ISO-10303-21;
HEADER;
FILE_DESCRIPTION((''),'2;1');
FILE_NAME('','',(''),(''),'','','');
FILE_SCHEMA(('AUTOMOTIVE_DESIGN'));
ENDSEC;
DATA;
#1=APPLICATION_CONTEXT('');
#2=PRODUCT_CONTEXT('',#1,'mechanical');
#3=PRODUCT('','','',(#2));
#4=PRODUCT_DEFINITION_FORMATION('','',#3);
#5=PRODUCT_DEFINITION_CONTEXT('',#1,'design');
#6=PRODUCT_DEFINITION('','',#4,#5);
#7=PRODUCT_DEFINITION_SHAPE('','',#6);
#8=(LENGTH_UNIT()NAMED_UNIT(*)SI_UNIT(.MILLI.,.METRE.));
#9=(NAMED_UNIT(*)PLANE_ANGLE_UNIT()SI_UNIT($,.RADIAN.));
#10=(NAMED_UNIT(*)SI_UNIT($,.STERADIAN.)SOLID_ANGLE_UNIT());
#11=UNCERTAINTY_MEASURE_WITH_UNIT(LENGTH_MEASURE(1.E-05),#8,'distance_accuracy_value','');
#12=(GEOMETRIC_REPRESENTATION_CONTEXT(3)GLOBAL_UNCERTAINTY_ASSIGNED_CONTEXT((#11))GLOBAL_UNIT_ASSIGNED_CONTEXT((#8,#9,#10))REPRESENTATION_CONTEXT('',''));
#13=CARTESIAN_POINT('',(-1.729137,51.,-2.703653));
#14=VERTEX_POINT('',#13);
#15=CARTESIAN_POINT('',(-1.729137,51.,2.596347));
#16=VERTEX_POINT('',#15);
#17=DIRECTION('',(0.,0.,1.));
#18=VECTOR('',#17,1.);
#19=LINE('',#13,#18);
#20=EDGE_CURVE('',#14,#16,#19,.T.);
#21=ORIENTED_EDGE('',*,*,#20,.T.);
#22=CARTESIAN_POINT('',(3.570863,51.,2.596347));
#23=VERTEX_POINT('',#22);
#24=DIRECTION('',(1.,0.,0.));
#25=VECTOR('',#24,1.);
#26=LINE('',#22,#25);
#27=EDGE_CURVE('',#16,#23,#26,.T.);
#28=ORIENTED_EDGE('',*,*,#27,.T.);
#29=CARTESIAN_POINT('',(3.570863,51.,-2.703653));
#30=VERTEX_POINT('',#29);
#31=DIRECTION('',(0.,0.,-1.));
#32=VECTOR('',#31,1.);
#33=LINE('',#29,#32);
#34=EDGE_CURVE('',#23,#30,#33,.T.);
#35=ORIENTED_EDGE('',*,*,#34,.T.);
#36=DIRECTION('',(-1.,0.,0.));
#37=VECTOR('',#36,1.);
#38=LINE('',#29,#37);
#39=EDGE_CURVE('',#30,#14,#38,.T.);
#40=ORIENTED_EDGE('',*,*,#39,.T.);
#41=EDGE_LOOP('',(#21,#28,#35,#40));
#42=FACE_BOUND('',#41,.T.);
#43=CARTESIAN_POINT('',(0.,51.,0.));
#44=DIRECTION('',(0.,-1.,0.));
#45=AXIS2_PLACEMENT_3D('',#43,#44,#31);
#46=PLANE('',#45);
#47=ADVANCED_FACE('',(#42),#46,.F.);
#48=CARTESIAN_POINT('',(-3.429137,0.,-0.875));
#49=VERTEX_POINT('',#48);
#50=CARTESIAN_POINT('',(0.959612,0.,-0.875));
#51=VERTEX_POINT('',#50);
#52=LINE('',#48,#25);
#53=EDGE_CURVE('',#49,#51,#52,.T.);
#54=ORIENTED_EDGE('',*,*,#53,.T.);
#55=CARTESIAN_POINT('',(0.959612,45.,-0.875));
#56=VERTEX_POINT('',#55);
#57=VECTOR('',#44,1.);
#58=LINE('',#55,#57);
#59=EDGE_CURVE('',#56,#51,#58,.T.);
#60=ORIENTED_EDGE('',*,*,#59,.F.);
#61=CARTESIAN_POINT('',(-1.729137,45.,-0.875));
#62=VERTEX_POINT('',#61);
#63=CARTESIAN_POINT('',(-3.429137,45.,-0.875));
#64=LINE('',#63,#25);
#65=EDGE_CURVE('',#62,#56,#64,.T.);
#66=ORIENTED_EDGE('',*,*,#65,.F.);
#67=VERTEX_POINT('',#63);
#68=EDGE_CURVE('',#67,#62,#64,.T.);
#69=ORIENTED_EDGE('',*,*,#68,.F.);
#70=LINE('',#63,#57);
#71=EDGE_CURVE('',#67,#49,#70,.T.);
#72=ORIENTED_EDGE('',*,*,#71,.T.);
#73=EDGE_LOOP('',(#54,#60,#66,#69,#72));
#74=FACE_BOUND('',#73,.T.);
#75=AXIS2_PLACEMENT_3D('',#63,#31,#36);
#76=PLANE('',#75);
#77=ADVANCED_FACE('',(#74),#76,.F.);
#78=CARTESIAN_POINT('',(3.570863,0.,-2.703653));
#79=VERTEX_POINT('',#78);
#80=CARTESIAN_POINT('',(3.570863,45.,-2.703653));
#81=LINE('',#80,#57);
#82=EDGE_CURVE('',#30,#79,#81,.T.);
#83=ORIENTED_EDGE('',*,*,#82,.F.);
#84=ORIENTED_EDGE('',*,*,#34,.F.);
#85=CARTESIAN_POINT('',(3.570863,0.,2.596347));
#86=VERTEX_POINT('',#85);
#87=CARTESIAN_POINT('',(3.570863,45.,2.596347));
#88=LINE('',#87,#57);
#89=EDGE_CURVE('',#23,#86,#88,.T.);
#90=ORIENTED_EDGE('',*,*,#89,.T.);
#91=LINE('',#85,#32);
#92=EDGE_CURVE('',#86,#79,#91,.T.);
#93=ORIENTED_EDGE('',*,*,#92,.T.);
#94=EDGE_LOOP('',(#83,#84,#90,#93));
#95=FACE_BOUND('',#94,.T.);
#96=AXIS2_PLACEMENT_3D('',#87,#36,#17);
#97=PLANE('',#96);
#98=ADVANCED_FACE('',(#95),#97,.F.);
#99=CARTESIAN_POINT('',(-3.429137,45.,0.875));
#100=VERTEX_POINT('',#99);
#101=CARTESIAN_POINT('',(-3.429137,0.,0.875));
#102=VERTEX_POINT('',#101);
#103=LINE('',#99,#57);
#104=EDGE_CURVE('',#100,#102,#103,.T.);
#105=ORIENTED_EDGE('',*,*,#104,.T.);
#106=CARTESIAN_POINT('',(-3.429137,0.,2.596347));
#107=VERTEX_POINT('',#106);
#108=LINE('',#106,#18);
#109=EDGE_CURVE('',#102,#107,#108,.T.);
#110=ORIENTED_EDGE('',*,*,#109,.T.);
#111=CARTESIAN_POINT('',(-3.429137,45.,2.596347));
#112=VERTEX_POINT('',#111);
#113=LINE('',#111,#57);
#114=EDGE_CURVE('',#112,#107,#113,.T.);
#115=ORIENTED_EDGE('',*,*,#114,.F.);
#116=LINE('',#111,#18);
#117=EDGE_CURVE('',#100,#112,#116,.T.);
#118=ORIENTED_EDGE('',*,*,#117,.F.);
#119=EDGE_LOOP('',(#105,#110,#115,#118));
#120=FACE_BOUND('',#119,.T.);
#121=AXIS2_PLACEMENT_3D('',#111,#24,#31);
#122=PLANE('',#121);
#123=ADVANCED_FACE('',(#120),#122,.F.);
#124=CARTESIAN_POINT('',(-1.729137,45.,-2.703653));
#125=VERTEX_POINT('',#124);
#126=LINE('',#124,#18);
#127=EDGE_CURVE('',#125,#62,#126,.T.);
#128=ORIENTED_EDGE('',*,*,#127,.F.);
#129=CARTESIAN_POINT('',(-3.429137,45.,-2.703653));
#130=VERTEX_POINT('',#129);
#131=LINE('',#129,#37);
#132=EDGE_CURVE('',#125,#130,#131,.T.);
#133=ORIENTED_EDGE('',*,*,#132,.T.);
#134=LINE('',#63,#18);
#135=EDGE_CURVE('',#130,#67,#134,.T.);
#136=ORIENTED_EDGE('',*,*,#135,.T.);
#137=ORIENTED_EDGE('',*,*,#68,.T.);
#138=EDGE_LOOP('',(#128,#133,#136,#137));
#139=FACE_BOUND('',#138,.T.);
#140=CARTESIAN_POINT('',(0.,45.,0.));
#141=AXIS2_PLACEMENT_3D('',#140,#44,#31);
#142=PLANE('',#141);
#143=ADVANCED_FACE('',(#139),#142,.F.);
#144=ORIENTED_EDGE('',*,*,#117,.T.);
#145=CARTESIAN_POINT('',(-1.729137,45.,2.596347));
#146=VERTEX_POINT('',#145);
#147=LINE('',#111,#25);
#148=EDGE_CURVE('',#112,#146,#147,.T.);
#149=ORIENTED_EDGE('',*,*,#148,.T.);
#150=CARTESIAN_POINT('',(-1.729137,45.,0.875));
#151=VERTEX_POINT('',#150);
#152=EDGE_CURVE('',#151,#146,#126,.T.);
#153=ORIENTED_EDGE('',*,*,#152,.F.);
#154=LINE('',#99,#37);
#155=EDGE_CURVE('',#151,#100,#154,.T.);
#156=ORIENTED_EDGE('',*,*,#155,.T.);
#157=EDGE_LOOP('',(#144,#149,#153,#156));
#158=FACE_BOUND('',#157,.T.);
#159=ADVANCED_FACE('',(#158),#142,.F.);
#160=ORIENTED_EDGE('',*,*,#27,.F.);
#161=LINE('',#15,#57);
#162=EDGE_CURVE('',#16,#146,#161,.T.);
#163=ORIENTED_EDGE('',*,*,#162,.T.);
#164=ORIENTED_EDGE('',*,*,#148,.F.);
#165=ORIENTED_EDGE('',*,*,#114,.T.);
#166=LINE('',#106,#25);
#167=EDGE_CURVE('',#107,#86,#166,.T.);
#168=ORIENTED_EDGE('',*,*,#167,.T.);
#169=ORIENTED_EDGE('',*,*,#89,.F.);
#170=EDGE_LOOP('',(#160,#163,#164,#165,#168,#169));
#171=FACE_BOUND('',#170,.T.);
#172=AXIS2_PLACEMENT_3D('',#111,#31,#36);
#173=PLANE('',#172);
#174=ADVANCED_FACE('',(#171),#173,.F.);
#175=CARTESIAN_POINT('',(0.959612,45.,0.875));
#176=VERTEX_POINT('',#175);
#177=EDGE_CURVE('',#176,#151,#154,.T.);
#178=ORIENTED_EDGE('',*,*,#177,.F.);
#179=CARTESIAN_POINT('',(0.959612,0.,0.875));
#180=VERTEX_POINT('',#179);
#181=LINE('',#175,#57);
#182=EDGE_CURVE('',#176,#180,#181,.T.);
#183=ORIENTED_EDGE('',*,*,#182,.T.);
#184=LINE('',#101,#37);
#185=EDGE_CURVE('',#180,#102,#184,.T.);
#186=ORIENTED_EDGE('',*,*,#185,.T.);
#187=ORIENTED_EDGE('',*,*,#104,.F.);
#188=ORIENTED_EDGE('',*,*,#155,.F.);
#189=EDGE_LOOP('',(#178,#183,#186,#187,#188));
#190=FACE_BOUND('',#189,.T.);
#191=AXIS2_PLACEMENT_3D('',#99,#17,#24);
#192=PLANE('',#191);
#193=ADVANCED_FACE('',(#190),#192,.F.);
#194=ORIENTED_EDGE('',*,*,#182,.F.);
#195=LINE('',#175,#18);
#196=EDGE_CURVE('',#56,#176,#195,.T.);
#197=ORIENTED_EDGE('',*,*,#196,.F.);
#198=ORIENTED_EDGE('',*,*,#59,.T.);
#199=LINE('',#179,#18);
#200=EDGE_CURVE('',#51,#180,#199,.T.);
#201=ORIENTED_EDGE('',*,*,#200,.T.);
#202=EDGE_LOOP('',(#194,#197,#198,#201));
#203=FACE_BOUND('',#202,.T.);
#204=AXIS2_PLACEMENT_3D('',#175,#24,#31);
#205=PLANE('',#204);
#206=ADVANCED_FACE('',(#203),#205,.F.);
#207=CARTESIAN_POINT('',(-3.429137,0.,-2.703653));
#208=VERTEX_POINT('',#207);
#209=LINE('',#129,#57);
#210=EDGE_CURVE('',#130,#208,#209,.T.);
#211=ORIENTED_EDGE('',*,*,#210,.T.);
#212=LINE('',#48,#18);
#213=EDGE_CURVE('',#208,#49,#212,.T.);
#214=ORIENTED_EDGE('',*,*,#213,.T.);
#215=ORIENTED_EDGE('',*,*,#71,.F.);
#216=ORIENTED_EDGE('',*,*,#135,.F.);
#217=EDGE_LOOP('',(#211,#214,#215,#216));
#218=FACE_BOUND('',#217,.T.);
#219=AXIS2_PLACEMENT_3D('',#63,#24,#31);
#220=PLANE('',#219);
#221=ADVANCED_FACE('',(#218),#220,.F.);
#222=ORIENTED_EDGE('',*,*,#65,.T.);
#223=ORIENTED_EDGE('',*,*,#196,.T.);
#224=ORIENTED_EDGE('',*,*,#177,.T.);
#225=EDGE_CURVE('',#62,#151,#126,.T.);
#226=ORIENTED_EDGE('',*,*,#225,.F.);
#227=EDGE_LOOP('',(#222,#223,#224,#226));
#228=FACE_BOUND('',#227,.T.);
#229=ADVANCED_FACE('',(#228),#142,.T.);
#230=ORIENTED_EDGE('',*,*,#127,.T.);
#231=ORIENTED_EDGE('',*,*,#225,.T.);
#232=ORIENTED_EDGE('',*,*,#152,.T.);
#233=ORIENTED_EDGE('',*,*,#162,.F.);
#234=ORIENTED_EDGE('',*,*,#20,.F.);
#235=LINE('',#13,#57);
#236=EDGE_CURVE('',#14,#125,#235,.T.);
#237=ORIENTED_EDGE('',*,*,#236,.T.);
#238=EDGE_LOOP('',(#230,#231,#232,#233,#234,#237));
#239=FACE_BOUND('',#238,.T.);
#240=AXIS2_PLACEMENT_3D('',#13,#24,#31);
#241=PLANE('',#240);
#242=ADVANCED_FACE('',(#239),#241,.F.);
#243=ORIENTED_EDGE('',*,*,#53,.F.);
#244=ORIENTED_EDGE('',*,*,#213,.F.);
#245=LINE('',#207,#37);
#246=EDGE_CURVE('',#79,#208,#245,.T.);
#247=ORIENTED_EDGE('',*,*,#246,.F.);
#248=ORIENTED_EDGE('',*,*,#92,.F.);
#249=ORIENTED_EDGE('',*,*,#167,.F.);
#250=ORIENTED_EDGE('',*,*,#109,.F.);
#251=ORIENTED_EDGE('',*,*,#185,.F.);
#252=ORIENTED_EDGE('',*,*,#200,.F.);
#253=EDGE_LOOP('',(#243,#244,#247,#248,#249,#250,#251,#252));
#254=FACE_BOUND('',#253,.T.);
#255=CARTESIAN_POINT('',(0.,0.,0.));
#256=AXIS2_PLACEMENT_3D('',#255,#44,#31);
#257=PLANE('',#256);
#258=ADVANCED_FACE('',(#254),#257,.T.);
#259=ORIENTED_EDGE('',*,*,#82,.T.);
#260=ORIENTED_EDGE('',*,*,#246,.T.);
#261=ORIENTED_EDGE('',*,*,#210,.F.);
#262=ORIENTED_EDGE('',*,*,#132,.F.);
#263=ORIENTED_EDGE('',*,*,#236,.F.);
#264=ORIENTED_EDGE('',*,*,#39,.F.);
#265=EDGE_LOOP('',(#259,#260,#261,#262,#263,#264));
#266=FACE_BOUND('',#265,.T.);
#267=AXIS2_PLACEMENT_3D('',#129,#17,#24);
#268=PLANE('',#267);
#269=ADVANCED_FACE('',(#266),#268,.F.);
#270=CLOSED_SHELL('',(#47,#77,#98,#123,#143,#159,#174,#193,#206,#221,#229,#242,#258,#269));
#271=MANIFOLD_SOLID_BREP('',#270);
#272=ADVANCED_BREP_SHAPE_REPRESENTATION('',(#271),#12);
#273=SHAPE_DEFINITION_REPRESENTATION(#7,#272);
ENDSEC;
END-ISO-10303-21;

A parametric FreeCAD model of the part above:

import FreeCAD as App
import Part
import Sketcher

V = App.Vector


def add_polygon(sketch, points):
    """Adds a closed chain of lines whose ends are joined by coincident constraints."""
    first, n = sketch.GeometryCount, len(points)
    for a, b in zip(points, points[1:] + points[:1]):
        sketch.addGeometry(Part.LineSegment(App.Vector(*a, 0), App.Vector(*b, 0)), False)
    for i in range(n):
        sketch.addConstraint(Sketcher.Constraint("Coincident", first + i, 2, first + (i + 1) % n, 1))

doc = App.newDocument("Part")
body = doc.addObject("PartDesign::Body", "Body")

# Sketch on XZ plane
sketch1 = body.newObject("Sketcher::SketchObject", "Sketch")
sketch1.AttachmentSupport = (doc.getObject("XZ_Plane"), [""])
sketch1.MapMode = "FlatFace"
add_polygon(sketch1, [(-3.4, -2.7), (-3.4, -0.9), (1, -0.9), (1, 0.9), (-3.4, 0.9), (-3.4, 2.6), (3.6, 2.6), (3.6, -2.7)])  # lines 0-7
sketch1.addConstraint(Sketcher.Constraint("Vertical", 0))
sketch1.addConstraint(Sketcher.Constraint("Horizontal", 1))
sketch1.addConstraint(Sketcher.Constraint("Vertical", 2))
sketch1.addConstraint(Sketcher.Constraint("Horizontal", 3))
sketch1.addConstraint(Sketcher.Constraint("Vertical", 4))
sketch1.addConstraint(Sketcher.Constraint("Horizontal", 5))
sketch1.addConstraint(Sketcher.Constraint("Vertical", 6))
sketch1.addConstraint(Sketcher.Constraint("Horizontal", 7))
sketch1.addConstraint(Sketcher.Constraint("Symmetric", 0, 2, 3, 2, -1))
sketch1.addConstraint(Sketcher.Constraint("DistanceX", 5, 1, 5, 2, 7.0))
sketch1.addConstraint(Sketcher.Constraint("DistanceY", 6, 2, 6, 1, 5.3))
sketch1.addConstraint(Sketcher.Constraint("DistanceY", 2, 1, 2, 2, 1.75))
sketch1.addConstraint(Sketcher.Constraint("DistanceX", 1, 1, 1, 2, 4.38875))
sketch1.addConstraint(Sketcher.Constraint("DistanceY", 0, 1, 0, 2, 1.828653))
sketch1.addConstraint(Sketcher.Constraint("DistanceX", 0, 2, -1, 1, 3.429137))
pad1 = body.newObject("PartDesign::Pad", "Pad")
pad1.Profile = sketch1
pad1.Length = 45
pad1.Reversed = True

# Sketch on XZ plane
sketch2 = body.newObject("Sketcher::SketchObject", "Sketch001")
sketch2.AttachmentSupport = (doc.getObject("XZ_Plane"), [""])
sketch2.MapMode = "FlatFace"
sketch2.AttachmentOffset = App.Placement(V(0, 0, -45), App.Rotation())
add_polygon(sketch2, [(-2, -3), (-2, 3), (4, 3), (4, -3)])  # lines 0-3
sketch2.addConstraint(Sketcher.Constraint("Vertical", 0))
sketch2.addConstraint(Sketcher.Constraint("Horizontal", 1))
sketch2.addConstraint(Sketcher.Constraint("Vertical", 2))
sketch2.addConstraint(Sketcher.Constraint("Horizontal", 3))
sketch2.addConstraint(Sketcher.Constraint("Equal", 3, 0))
sketch2.addConstraint(Sketcher.Constraint("DistanceX", 1, 1, 1, 2, 5.3))
sketch2.addConstraint(Sketcher.Constraint("DistanceX", 0, 2, -1, 1, 1.729137))
sketch2.addConstraint(Sketcher.Constraint("DistanceY", -1, 1, 0, 2, 2.596347))
pad2 = body.newObject("PartDesign::Pad", "Pad001")
pad2.Profile = sketch2
pad2.Length = 6
pad2.Reversed = True

doc.recompute()
